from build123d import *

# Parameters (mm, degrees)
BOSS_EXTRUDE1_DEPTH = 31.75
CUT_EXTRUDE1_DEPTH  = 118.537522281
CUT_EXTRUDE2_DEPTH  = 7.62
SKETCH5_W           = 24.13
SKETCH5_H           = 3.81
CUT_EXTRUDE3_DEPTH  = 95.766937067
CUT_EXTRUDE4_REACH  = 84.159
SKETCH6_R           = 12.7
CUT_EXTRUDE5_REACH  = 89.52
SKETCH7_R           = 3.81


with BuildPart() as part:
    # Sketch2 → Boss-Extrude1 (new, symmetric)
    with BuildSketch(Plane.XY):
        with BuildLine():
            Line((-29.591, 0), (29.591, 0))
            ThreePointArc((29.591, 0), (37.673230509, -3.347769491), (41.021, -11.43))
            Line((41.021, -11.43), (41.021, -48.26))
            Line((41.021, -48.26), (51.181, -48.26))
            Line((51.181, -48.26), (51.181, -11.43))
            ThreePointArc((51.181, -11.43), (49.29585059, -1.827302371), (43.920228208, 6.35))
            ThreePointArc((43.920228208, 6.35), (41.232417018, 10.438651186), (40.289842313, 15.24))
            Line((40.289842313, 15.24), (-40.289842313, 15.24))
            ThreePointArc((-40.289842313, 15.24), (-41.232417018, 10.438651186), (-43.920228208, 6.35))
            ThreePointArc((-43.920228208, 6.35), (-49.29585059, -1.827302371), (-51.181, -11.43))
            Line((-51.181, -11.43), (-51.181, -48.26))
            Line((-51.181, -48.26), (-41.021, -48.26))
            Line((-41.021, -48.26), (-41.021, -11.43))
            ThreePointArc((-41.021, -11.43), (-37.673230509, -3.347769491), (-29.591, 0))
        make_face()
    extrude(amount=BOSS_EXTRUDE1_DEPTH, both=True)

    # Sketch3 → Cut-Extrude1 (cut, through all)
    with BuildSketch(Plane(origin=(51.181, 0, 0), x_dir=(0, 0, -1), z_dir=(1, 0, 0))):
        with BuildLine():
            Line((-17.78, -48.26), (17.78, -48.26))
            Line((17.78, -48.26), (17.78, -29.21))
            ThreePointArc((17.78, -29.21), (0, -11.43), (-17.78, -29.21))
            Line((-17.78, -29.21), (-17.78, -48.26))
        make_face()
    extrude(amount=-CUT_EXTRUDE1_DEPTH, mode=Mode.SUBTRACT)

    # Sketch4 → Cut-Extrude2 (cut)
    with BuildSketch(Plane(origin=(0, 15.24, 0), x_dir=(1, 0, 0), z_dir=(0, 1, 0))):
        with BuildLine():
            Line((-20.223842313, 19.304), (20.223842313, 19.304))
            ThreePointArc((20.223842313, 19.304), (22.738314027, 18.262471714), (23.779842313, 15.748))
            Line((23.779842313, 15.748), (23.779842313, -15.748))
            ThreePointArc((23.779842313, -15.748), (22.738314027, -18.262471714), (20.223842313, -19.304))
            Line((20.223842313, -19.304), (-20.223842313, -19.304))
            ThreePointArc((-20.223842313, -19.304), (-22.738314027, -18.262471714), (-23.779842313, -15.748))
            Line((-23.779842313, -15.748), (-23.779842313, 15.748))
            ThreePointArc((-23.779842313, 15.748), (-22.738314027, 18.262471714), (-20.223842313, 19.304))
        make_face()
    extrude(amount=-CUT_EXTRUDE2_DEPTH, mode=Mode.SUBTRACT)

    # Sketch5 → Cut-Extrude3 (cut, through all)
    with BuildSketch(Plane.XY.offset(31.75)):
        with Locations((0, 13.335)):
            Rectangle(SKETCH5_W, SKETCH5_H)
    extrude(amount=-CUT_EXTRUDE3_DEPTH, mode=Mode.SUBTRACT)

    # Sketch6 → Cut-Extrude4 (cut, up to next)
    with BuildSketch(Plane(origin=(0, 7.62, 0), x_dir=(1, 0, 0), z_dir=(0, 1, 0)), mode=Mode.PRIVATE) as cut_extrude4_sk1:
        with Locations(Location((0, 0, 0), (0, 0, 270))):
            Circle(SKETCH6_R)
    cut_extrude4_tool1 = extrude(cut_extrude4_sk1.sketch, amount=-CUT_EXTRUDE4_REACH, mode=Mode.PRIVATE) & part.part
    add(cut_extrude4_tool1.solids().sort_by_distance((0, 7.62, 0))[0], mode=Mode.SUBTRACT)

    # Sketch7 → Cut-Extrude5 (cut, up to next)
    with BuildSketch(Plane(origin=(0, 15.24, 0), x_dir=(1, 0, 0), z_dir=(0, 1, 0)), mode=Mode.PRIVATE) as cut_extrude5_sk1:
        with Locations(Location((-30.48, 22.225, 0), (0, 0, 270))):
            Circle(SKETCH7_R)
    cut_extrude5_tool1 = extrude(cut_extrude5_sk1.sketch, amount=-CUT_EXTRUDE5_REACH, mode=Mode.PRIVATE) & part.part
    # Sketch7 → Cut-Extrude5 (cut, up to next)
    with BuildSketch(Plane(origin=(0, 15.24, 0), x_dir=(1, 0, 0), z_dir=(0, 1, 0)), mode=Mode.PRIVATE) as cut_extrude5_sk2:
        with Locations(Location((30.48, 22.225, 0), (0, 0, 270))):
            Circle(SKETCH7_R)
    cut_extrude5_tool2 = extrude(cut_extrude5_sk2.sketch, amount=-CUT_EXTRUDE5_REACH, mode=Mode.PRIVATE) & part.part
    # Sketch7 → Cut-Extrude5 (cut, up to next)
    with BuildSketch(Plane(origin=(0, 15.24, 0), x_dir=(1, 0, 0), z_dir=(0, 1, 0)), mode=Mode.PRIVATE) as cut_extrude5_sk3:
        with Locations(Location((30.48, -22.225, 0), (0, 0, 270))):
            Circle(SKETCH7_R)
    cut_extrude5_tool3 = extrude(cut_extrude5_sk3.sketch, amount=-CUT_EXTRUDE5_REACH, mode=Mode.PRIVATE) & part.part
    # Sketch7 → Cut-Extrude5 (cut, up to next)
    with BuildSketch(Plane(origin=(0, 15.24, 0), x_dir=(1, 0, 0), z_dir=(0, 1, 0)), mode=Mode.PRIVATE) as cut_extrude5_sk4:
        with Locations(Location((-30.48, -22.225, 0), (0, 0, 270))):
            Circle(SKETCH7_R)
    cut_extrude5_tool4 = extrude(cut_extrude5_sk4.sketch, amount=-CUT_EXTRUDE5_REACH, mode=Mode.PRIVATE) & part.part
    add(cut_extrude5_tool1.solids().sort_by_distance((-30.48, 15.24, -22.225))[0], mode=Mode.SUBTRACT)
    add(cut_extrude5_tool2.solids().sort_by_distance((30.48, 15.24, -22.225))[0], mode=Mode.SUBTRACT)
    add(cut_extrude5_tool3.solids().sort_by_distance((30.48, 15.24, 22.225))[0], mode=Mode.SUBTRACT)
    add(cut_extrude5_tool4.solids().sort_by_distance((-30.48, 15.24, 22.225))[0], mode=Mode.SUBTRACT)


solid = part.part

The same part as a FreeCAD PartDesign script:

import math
import FreeCAD as App
import Part
import Sketcher
Q = App.Units.Quantity

doc = App.newDocument("Part")
body = doc.addObject("PartDesign::Body", "Body")

# Sketch on XY plane
sketch1 = doc.addObject("Sketcher::SketchObject", "Sketch")
body.addObject(sketch1)
sketch1.AttachmentSupport = (doc.XY_Plane, [""])
sketch1.MapMode = "FlatFace"
sketch1.addGeometry(Part.LineSegment(App.Vector(-29.591, 0, 0), App.Vector(29.591, 0, 0)), False)
sketch1.addGeometry(Part.ArcOfCircle(Part.Circle(App.Vector(29.591, -11.43, 0), App.Vector(0, 0, 1), 11.43), math.radians(0), math.radians(90)), False)
sketch1.addGeometry(Part.LineSegment(App.Vector(41.021, -11.43, 0), App.Vector(41.021, -48.26, 0)), False)
sketch1.addGeometry(Part.LineSegment(App.Vector(41.021, -48.26, 0), App.Vector(51.181, -48.26, 0)), False)
sketch1.addGeometry(Part.LineSegment(App.Vector(51.181, -48.26, 0), App.Vector(51.181, -11.43, 0)), False)
sketch1.addGeometry(Part.ArcOfCircle(Part.Circle(App.Vector(25.781, -11.43, 0), App.Vector(0, 0, 1), 25.4), math.radians(0), math.radians(44.427004)), False)
sketch1.addGeometry(Part.ArcOfCircle(Part.Circle(App.Vector(52.989842, 15.24, 0), App.Vector(0, 0, 1), 12.7), math.radians(180), math.radians(224.427004)), False)
sketch1.addGeometry(Part.LineSegment(App.Vector(40.289842, 15.24, 0), App.Vector(-40.289842, 15.24, 0)), False)
sketch1.addGeometry(Part.ArcOfCircle(Part.Circle(App.Vector(-52.989842, 15.24, 0), App.Vector(0, 0, 1), 12.7), math.radians(-44.427004), math.radians(0)), False)
sketch1.addGeometry(Part.ArcOfCircle(Part.Circle(App.Vector(-25.781, -11.43, 0), App.Vector(0, 0, 1), 25.4), math.radians(135.572996), math.radians(180)), False)
sketch1.addGeometry(Part.LineSegment(App.Vector(-51.181, -11.43, 0), App.Vector(-51.181, -48.26, 0)), False)
sketch1.addGeometry(Part.LineSegment(App.Vector(-51.181, -48.26, 0), App.Vector(-41.021, -48.26, 0)), False)
sketch1.addGeometry(Part.LineSegment(App.Vector(-41.021, -48.26, 0), App.Vector(-41.021, -11.43, 0)), False)
sketch1.addGeometry(Part.ArcOfCircle(Part.Circle(App.Vector(-29.591, -11.43, 0), App.Vector(0, 0, 1), 11.43), math.radians(90), math.radians(180)), False)
sketch1.addConstraint(Sketcher.Constraint("Tangent", 0, 2, 1, 2))
sketch1.addConstraint(Sketcher.Constraint("Tangent", 1, 1, 2, 1))
sketch1.addConstraint(Sketcher.Constraint("Coincident", 2, 2, 3, 1))
sketch1.addConstraint(Sketcher.Constraint("Coincident", 3, 2, 4, 1))
sketch1.addConstraint(Sketcher.Constraint("Tangent", 4, 2, 5, 1))
sketch1.addConstraint(Sketcher.Constraint("Tangent", 5, 2, 6, 2))
sketch1.addConstraint(Sketcher.Constraint("Coincident", 6, 1, 7, 1))
sketch1.addConstraint(Sketcher.Constraint("Coincident", 7, 2, 8, 2))
sketch1.addConstraint(Sketcher.Constraint("Tangent", 8, 1, 9, 1))
sketch1.addConstraint(Sketcher.Constraint("Tangent", 9, 2, 10, 1))
sketch1.addConstraint(Sketcher.Constraint("Coincident", 10, 2, 11, 1))
sketch1.addConstraint(Sketcher.Constraint("Coincident", 11, 2, 12, 1))
sketch1.addConstraint(Sketcher.Constraint("Tangent", 12, 2, 13, 2))
sketch1.addConstraint(Sketcher.Constraint("Tangent", 13, 1, 0, 1))
sketch1.addConstraint(Sketcher.Constraint("Horizontal", 0))
sketch1.addConstraint(Sketcher.Constraint("Vertical", 2))
sketch1.addConstraint(Sketcher.Constraint("Horizontal", 3))
sketch1.addConstraint(Sketcher.Constraint("Vertical", 4))
sketch1.addConstraint(Sketcher.Constraint("Horizontal", 7))
sketch1.addConstraint(Sketcher.Constraint("Vertical", 10))
sketch1.addConstraint(Sketcher.Constraint("Horizontal", 11))
sketch1.addConstraint(Sketcher.Constraint("Vertical", 12))
sketch1.addConstraint(Sketcher.Constraint("Equal", 6, 8))
sketch1.addConstraint(Sketcher.Constraint("Equal", 5, 9))
sketch1.addConstraint(Sketcher.Constraint("Equal", 1, 13))
sketch1.addConstraint(Sketcher.Constraint("Symmetric", 0, 2, 13, 1, -1, 1))
sketch1.addConstraint(Sketcher.Constraint("Symmetric", 6, 3, 8, 3, -2))
sketch1.addConstraint(Sketcher.Constraint("Symmetric", 3, 2, 10, 2, -2))
sketch1.addConstraint(Sketcher.Constraint("Horizontal", 1, 3, 5, 3))
sketch1.addConstraint(Sketcher.Constraint("Horizontal", 8, 3, 6, 1))
sketch1.addConstraint(Sketcher.Constraint("Radius", 5, Q("1 in")))
sketch1.addConstraint(Sketcher.Constraint("Radius", 6, Q("0.5 in")))
sketch1.addConstraint(Sketcher.Constraint("Radius", 1, Q("0.45 in")))
sketch1.addConstraint(Sketcher.Constraint("DistanceX", 3, 1, 3, 2, Q("0.4 in")))
sketch1.addConstraint(Sketcher.Constraint("DistanceX", 0, 1, 0, 2, Q("2.33 in")))
sketch1.addConstraint(Sketcher.Constraint("DistanceY", 2, 2, 2, 1, Q("1.45 in")))
sketch1.addConstraint(Sketcher.Constraint("DistanceY", -1, 1, 6, 3, Q("0.6 in")))
pad1 = doc.addObject("PartDesign::Pad", "Pad")
body.addObject(pad1)
pad1.Profile = sketch1
pad1.Length = Q("2.5 in")
pad1.Midplane = True

# Sketch on YZ plane
sketch2 = doc.addObject("Sketcher::SketchObject", "Sketch001")
body.addObject(sketch2)
sketch2.AttachmentSupport = (doc.YZ_Plane, [""])
sketch2.MapMode = "FlatFace"
sketch2.AttachmentOffset = App.Placement(App.Vector(0, 0, 2.015 * 25.4), App.Rotation())
sketch2.addGeometry(Part.LineSegment(App.Vector(-48.26, 17.78, 0), App.Vector(-48.26, -17.78, 0)), False)
sketch2.addGeometry(Part.LineSegment(App.Vector(-48.26, -17.78, 0), App.Vector(-29.21, -17.78, 0)), False)
sketch2.addGeometry(Part.ArcOfCircle(Part.Circle(App.Vector(-29.21, 0, 0), App.Vector(0, 0, 1), 17.78), math.radians(-90), math.radians(90)), False)
sketch2.addGeometry(Part.LineSegment(App.Vector(-29.21, 17.78, 0), App.Vector(-48.26, 17.78, 0)), False)
sketch2.addConstraint(Sketcher.Constraint("Coincident", 0, 2, 1, 1))
sketch2.addConstraint(Sketcher.Constraint("Tangent", 1, 2, 2, 1))
sketch2.addConstraint(Sketcher.Constraint("Tangent", 2, 2, 3, 1))
sketch2.addConstraint(Sketcher.Constraint("Coincident", 3, 2, 0, 1))
sketch2.addConstraint(Sketcher.Constraint("Vertical", 0))
sketch2.addConstraint(Sketcher.Constraint("Horizontal", 1))
sketch2.addConstraint(Sketcher.Constraint("Horizontal", 3))
sketch2.addConstraint(Sketcher.Constraint("PointOnObject", 2, 3, -1))
sketch2.addConstraint(Sketcher.Constraint("Radius", 2, Q("0.7 in")))
sketch2.addConstraint(Sketcher.Constraint("DistanceX", 1, 1, 1, 2, Q("0.75 in")))
sketch2.addConstraint(Sketcher.Constraint("DistanceX", 0, 2, -1, 1, Q("1.9 in")))
pocket1 = doc.addObject("PartDesign::Pocket", "Pocket")
body.addObject(pocket1)
pocket1.Profile = sketch2
pocket1.Type = "ThroughAll"

# Sketch on XZ plane
sketch3 = doc.addObject("Sketcher::SketchObject", "Sketch002")
body.addObject(sketch3)
sketch3.AttachmentSupport = (doc.XZ_Plane, [""])
sketch3.MapMode = "FlatFace"
sketch3.AttachmentOffset = App.Placement(App.Vector(0, 0, -0.6 * 25.4), App.Rotation())
sketch3.addGeometry(Part.LineSegment(App.Vector(20.223842, -19.304, 0), App.Vector(-20.223842, -19.304, 0)), False)
sketch3.addGeometry(Part.ArcOfCircle(Part.Circle(App.Vector(-20.223842, -15.748, 0), App.Vector(0, 0, 1), 3.556), math.radians(180), math.radians(270)), False)
sketch3.addGeometry(Part.LineSegment(App.Vector(-23.779842, -15.748, 0), App.Vector(-23.779842, 15.748, 0)), False)
sketch3.addGeometry(Part.ArcOfCircle(Part.Circle(App.Vector(-20.223842, 15.748, 0), App.Vector(0, 0, 1), 3.556), math.radians(90), math.radians(180)), False)
sketch3.addGeometry(Part.LineSegment(App.Vector(-20.223842, 19.304, 0), App.Vector(20.223842, 19.304, 0)), False)
sketch3.addGeometry(Part.ArcOfCircle(Part.Circle(App.Vector(20.223842, 15.748, 0), App.Vector(0, 0, 1), 3.556), math.radians(0), math.radians(90)), False)
sketch3.addGeometry(Part.LineSegment(App.Vector(23.779842, 15.748, 0), App.Vector(23.779842, -15.748, 0)), False)
sketch3.addGeometry(Part.ArcOfCircle(Part.Circle(App.Vector(20.223842, -15.748, 0), App.Vector(0, 0, 1), 3.556), math.radians(-90), math.radians(0)), False)
sketch3.addConstraint(Sketcher.Constraint("Tangent", 0, 2, 1, 2))
sketch3.addConstraint(Sketcher.Constraint("Tangent", 1, 1, 2, 1))
sketch3.addConstraint(Sketcher.Constraint("Tangent", 2, 2, 3, 2))
sketch3.addConstraint(Sketcher.Constraint("Tangent", 3, 1, 4, 1))
sketch3.addConstraint(Sketcher.Constraint("Tangent", 4, 2, 5, 2))
sketch3.addConstraint(Sketcher.Constraint("Tangent", 5, 1, 6, 1))
sketch3.addConstraint(Sketcher.Constraint("Tangent", 6, 2, 7, 2))
sketch3.addConstraint(Sketcher.Constraint("Tangent", 7, 1, 0, 1))
sketch3.addConstraint(Sketcher.Constraint("Horizontal", 0))
sketch3.addConstraint(Sketcher.Constraint("Vertical", 2))
sketch3.addConstraint(Sketcher.Constraint("Horizontal", 4))
sketch3.addConstraint(Sketcher.Constraint("Vertical", 6))
sketch3.addConstraint(Sketcher.Constraint("Equal", 1, 3))
sketch3.addConstraint(Sketcher.Constraint("Equal", 3, 5))
sketch3.addConstraint(Sketcher.Constraint("Equal", 5, 7))
sketch3.addConstraint(Sketcher.Constraint("Symmetric", 1, 3, 5, 3, -1, 1))
sketch3.addConstraint(Sketcher.Constraint("Radius", 1, Q("0.14 in")))
sketch3.addConstraint(Sketcher.Constraint("DistanceY", 2, 1, 2, 2, Q("1.24 in")))
sketch3.addConstraint(Sketcher.Constraint("DistanceX", 0, 2, 0, 1, 40.447685))
pocket2 = doc.addObject("PartDesign::Pocket", "Pocket001")
body.addObject(pocket2)
pocket2.Profile = sketch3
pocket2.Length = Q("0.3 in")
pocket2.Reversed = True

# Sketch on XY plane
sketch4 = doc.addObject("Sketcher::SketchObject", "Sketch003")
body.addObject(sketch4)
sketch4.AttachmentSupport = (doc.XY_Plane, [""])
sketch4.MapMode = "FlatFace"
sketch4.AttachmentOffset = App.Placement(App.Vector(0, 0, 1.25 * 25.4), App.Rotation())
sketch4.addGeometry(Part.LineSegment(App.Vector(-12.065, 15.24, 0), App.Vector(-12.065, 11.43, 0)), False)
sketch4.addGeometry(Part.LineSegment(App.Vector(-12.065, 11.43, 0), App.Vector(12.065, 11.43, 0)), False)
sketch4.addGeometry(Part.LineSegment(App.Vector(12.065, 11.43, 0), App.Vector(12.065, 15.24, 0)), False)
sketch4.addGeometry(Part.LineSegment(App.Vector(12.065, 15.24, 0), App.Vector(-12.065, 15.24, 0)), False)
sketch4.addConstraint(Sketcher.Constraint("Coincident", 0, 2, 1, 1))
sketch4.addConstraint(Sketcher.Constraint("Coincident", 1, 2, 2, 1))
sketch4.addConstraint(Sketcher.Constraint("Coincident", 2, 2, 3, 1))
sketch4.addConstraint(Sketcher.Constraint("Coincident", 3, 2, 0, 1))
sketch4.addConstraint(Sketcher.Constraint("Vertical", 0))
sketch4.addConstraint(Sketcher.Constraint("Horizontal", 1))
sketch4.addConstraint(Sketcher.Constraint("Vertical", 2))
sketch4.addConstraint(Sketcher.Constraint("Horizontal", 3))
sketch4.addConstraint(Sketcher.Constraint("DistanceX", 1, 1, 1, 2, Q("0.95 in")))
sketch4.addConstraint(Sketcher.Constraint("DistanceY", 0, 2, 0, 1, Q("0.15 in")))
sketch4.addConstraint(Sketcher.Constraint("DistanceY", -1, 1, 2, 2, Q("0.6 in")))
sketch4.addConstraint(Sketcher.Constraint("DistanceX", 0, 2, -1, 1, Q("0.475 in")))
pocket3 = doc.addObject("PartDesign::Pocket", "Pocket002")
body.addObject(pocket3)
pocket3.Profile = sketch4
pocket3.Type = "ThroughAll"

# Sketch on XZ plane
sketch5 = doc.addObject("Sketcher::SketchObject", "Sketch004")
body.addObject(sketch5)
sketch5.AttachmentSupport = (doc.XZ_Plane, [""])
sketch5.MapMode = "FlatFace"
sketch5.AttachmentOffset = App.Placement(App.Vector(0, 0, -0.3 * 25.4), App.Rotation())
sketch5.addGeometry(Part.Circle(App.Vector(0, 0, 0), App.Vector(0, 0, 1), 12.7), False)
sketch5.addConstraint(Sketcher.Constraint("Coincident", 0, 3, -1, 1))
sketch5.addConstraint(Sketcher.Constraint("Diameter", 0, Q("1 in")))
pocket4 = doc.addObject("PartDesign::Pocket", "Pocket003")
body.addObject(pocket4)
pocket4.Profile = sketch5
pocket4.Type = "UpToFirst"
pocket4.Reversed = True

# Sketch on XZ plane
sketch6 = doc.addObject("Sketcher::SketchObject", "Sketch005")
body.addObject(sketch6)
sketch6.AttachmentSupport = (doc.XZ_Plane, [""])
sketch6.MapMode = "FlatFace"
sketch6.AttachmentOffset = App.Placement(App.Vector(0, 0, -0.6 * 25.4), App.Rotation())
sketch6.addGeometry(Part.Circle(App.Vector(-30.48, -22.225, 0), App.Vector(0, 0, 1), 3.81), False)
sketch6.addConstraint(Sketcher.Constraint("Diameter", 0, Q("0.3 in")))
sketch6.addConstraint(Sketcher.Constraint("DistanceX", 0, 3, -1, 1, Q("1.2 in")))
sketch6.addConstraint(Sketcher.Constraint("DistanceY", 0, 3, -1, 1, Q("0.875 in")))
pocket5 = doc.addObject("PartDesign::Pocket", "Pocket004")
body.addObject(pocket5)
pocket5.Profile = sketch6
pocket5.Type = "UpToFirst"
pocket5.Reversed = True

# Sketch on XZ plane
sketch7 = doc.addObject("Sketcher::SketchObject", "Sketch006")
body.addObject(sketch7)
sketch7.AttachmentSupport = (doc.XZ_Plane, [""])
sketch7.MapMode = "FlatFace"
sketch7.AttachmentOffset = App.Placement(App.Vector(0, 0, -0.6 * 25.4), App.Rotation())
sketch7.addGeometry(Part.Circle(App.Vector(30.48, -22.225, 0), App.Vector(0, 0, 1), 3.81), False)
sketch7.addConstraint(Sketcher.Constraint("Diameter", 0, Q("0.3 in")))
sketch7.addConstraint(Sketcher.Constraint("DistanceX", -1, 1, 0, 3, Q("1.2 in")))
sketch7.addConstraint(Sketcher.Constraint("DistanceY", 0, 3, -1, 1, Q("0.875 in")))
pocket6 = doc.addObject("PartDesign::Pocket", "Pocket005")
body.addObject(pocket6)
pocket6.Profile = sketch7
pocket6.Type = "UpToFirst"
pocket6.Reversed = True

# Sketch on XZ plane
sketch8 = doc.addObject("Sketcher::SketchObject", "Sketch007")
body.addObject(sketch8)
sketch8.AttachmentSupport = (doc.XZ_Plane, [""])
sketch8.MapMode = "FlatFace"
sketch8.AttachmentOffset = App.Placement(App.Vector(0, 0, -0.6 * 25.4), App.Rotation())
sketch8.addGeometry(Part.Circle(App.Vector(30.48, 22.225, 0), App.Vector(0, 0, 1), 3.81), False)
sketch8.addConstraint(Sketcher.Constraint("Diameter", 0, Q("0.3 in")))
sketch8.addConstraint(Sketcher.Constraint("DistanceX", -1, 1, 0, 3, Q("1.2 in")))
sketch8.addConstraint(Sketcher.Constraint("DistanceY", -1, 1, 0, 3, Q("0.875 in")))
pocket7 = doc.addObject("PartDesign::Pocket", "Pocket006")
body.addObject(pocket7)
pocket7.Profile = sketch8
pocket7.Type = "UpToFirst"
pocket7.Reversed = True

# Sketch on XZ plane
sketch9 = doc.addObject("Sketcher::SketchObject", "Sketch008")
body.addObject(sketch9)
sketch9.AttachmentSupport = (doc.XZ_Plane, [""])
sketch9.MapMode = "FlatFace"
sketch9.AttachmentOffset = App.Placement(App.Vector(0, 0, -0.6 * 25.4), App.Rotation())
sketch9.addGeometry(Part.Circle(App.Vector(-30.48, 22.225, 0), App.Vector(0, 0, 1), 3.81), False)
sketch9.addConstraint(Sketcher.Constraint("Diameter", 0, Q("0.3 in")))
sketch9.addConstraint(Sketcher.Constraint("DistanceX", 0, 3, -1, 1, Q("1.2 in")))
sketch9.addConstraint(Sketcher.Constraint("DistanceY", -1, 1, 0, 3, Q("0.875 in")))
pocket8 = doc.addObject("PartDesign::Pocket", "Pocket007")
body.addObject(pocket8)
pocket8.Profile = sketch9
pocket8.Type = "UpToFirst"
pocket8.Reversed = True

doc.recompute()
